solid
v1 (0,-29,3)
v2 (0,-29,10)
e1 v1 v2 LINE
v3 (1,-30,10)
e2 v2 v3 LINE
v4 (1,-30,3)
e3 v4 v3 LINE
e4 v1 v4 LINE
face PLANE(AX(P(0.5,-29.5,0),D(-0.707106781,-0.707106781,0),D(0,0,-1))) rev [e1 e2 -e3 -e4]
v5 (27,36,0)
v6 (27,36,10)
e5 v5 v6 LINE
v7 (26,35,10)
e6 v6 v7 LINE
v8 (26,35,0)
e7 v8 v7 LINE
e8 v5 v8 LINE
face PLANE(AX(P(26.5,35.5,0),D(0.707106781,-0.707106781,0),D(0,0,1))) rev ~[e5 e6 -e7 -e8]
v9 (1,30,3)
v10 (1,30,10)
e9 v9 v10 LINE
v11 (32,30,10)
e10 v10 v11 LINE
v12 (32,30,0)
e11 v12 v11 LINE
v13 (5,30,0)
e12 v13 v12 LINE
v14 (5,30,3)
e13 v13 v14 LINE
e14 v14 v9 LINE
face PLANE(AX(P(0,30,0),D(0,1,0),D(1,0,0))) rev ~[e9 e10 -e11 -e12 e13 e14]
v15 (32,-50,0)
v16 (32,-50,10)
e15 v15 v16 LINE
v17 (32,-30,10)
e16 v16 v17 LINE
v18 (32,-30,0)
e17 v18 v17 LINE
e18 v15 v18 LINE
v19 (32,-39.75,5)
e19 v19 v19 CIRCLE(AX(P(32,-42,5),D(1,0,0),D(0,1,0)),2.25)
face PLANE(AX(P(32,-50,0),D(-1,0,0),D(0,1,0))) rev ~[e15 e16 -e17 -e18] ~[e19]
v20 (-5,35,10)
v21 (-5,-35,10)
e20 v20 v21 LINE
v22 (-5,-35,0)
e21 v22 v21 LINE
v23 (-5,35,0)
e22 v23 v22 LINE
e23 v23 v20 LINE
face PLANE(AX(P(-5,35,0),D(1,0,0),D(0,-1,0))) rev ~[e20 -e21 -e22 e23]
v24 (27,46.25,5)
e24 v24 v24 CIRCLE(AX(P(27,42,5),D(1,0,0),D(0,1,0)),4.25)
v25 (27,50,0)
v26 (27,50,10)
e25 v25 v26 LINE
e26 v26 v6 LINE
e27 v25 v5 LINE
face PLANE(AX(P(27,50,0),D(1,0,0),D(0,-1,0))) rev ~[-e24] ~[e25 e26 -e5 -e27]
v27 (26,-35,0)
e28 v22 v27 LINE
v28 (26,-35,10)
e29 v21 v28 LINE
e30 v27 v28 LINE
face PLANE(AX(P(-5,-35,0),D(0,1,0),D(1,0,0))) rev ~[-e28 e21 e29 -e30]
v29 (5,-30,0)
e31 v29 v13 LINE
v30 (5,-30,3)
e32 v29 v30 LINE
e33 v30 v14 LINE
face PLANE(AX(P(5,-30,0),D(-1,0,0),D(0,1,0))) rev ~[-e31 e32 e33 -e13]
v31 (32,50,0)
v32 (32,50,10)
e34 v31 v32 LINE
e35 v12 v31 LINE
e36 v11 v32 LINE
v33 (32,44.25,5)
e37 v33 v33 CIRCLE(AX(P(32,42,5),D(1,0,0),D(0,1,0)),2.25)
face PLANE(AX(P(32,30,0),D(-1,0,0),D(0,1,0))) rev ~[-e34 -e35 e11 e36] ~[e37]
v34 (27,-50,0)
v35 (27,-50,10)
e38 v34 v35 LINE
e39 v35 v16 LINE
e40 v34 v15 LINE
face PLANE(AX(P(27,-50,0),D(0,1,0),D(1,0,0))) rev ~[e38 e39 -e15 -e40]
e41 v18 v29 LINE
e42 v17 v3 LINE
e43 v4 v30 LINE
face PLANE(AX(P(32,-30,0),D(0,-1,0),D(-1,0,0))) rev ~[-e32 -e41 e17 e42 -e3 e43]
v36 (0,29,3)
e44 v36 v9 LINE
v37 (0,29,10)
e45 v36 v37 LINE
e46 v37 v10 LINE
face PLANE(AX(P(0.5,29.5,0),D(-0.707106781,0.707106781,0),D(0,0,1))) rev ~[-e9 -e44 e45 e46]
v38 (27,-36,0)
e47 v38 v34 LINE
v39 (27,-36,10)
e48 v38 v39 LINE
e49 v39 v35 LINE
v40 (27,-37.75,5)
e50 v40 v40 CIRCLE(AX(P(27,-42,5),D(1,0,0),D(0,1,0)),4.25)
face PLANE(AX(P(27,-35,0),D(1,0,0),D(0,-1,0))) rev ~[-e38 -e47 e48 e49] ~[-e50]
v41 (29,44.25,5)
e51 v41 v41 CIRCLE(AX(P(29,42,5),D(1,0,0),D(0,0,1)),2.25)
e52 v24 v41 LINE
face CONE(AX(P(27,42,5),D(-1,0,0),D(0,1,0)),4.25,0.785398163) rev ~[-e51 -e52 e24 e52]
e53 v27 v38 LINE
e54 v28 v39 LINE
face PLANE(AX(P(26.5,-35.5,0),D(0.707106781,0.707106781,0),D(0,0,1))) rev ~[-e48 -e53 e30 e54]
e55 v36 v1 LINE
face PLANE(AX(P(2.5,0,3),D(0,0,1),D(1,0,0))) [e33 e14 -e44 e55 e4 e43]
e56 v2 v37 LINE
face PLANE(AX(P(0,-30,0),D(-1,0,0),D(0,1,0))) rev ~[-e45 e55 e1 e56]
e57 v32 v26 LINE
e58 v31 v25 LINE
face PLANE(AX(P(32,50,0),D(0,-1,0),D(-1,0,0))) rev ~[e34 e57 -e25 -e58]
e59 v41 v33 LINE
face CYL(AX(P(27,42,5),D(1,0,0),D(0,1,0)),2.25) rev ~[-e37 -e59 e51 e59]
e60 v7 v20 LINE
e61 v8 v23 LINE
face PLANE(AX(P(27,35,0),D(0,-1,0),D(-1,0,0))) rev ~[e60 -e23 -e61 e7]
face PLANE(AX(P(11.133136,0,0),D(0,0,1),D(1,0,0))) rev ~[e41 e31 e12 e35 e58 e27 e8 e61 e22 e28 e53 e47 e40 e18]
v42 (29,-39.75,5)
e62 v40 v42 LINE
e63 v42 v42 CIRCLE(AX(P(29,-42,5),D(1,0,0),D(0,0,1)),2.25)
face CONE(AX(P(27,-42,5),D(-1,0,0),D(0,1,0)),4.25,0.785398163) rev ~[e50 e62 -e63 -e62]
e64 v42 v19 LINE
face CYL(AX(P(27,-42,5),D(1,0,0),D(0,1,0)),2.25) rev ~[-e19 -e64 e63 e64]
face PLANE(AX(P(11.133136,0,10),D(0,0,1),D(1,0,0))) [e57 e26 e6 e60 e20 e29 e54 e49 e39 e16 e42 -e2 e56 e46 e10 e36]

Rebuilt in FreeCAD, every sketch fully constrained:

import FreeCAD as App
import Part
import Sketcher

V = App.Vector


def edges_at(feature, points):
    """Names of the edges that pass closest to the given points."""
    edges = feature.Shape.Edges
    near = lambda p: min(range(len(edges)), key=lambda i: edges[i].distToShape(Part.Vertex(*p))[0])
    return sorted({f"Edge{near(p) + 1}" for p in points})


def add_polygon(sketch, points):
    """Adds a closed chain of lines whose ends are joined by coincident constraints."""
    first, n = sketch.GeometryCount, len(points)
    for a, b in zip(points, points[1:] + points[:1]):
        sketch.addGeometry(Part.LineSegment(App.Vector(*a, 0), App.Vector(*b, 0)), False)
    for i in range(n):
        sketch.addConstraint(Sketcher.Constraint("Coincident", first + i, 2, first + (i + 1) % n, 1))

doc = App.newDocument("Part")
body = doc.addObject("PartDesign::Body", "Body")

# Sketch on XY plane
sketch1 = doc.addObject("Sketcher::SketchObject", "Sketch")
body.addObject(sketch1)
sketch1.AttachmentSupport = (doc.XY_Plane, [""])
sketch1.MapMode = "FlatFace"
add_polygon(sketch1, [(0, -30), (0, 30), (32, 30), (32, 50), (27, 50), (27, 35), (-5, 35), (-5, -35), (27, -35), (27, -50), (32, -50), (32, -30)])  # lines 0-11
sketch1.addConstraint(Sketcher.Constraint("Vertical", 0))
sketch1.addConstraint(Sketcher.Constraint("Horizontal", 1))
sketch1.addConstraint(Sketcher.Constraint("Vertical", 2))
sketch1.addConstraint(Sketcher.Constraint("Horizontal", 3))
sketch1.addConstraint(Sketcher.Constraint("Vertical", 4))
sketch1.addConstraint(Sketcher.Constraint("Horizontal", 5))
sketch1.addConstraint(Sketcher.Constraint("Vertical", 6))
sketch1.addConstraint(Sketcher.Constraint("Horizontal", 7))
sketch1.addConstraint(Sketcher.Constraint("Vertical", 8))
sketch1.addConstraint(Sketcher.Constraint("Horizontal", 9))
sketch1.addConstraint(Sketcher.Constraint("Vertical", 10))
sketch1.addConstraint(Sketcher.Constraint("Horizontal", 11))
sketch1.addConstraint(Sketcher.Constraint("Symmetric", 0, 2, 11, 2, -1, 1))
sketch1.addConstraint(Sketcher.Constraint("Symmetric", 4, 2, 7, 2, -1))
sketch1.addConstraint(Sketcher.Constraint("Symmetric", 2, 2, 9, 2, -1))
sketch1.addConstraint(Sketcher.Constraint("Equal", 1, 5))
sketch1.addConstraint(Sketcher.Constraint("DistanceX", 1, 1, 1, 2, 32.0))
sketch1.addConstraint(Sketcher.Constraint("DistanceX", 3, 2, 3, 1, 5.0))
sketch1.addConstraint(Sketcher.Constraint("DistanceY", 0, 1, 0, 2, 60.0))
sketch1.addConstraint(Sketcher.Constraint("DistanceY", 2, 1, 2, 2, 20.0))
sketch1.addConstraint(Sketcher.Constraint("DistanceY", 4, 2, 4, 1, 15.0))
pad1 = doc.addObject("PartDesign::Pad", "Pad")
body.addObject(pad1)
pad1.Profile = sketch1
pad1.Length = 10
doc.recompute()

chamfer = doc.addObject("PartDesign::Chamfer", "Chamfer")
body.addObject(chamfer)
chamfer.Base = (pad1, edges_at(pad1, [
    (0, -30, 5),
    (27, -35, 5),
    (0, 30, 5),
    (27, 35, 5),
]))
chamfer.Size = 1

# Sketch on YZ plane
sketch2 = doc.addObject("Sketcher::SketchObject", "Sketch001")
body.addObject(sketch2)
sketch2.AttachmentSupport = (doc.YZ_Plane, [""])
sketch2.MapMode = "FlatFace"
sketch2.AttachmentOffset = App.Placement(V(0, 0, 27), App.Rotation())
sketch2.addGeometry(Part.Circle(V(-42, 5, 0), V(0, 0, 1), 2.2), False)
sketch2.addGeometry(Part.Circle(V(42, 5, 0), V(0, 0, 1), 2.2), False)
sketch2.addConstraint(Sketcher.Constraint("Equal", 0, 1))
sketch2.addConstraint(Sketcher.Constraint("Symmetric", 0, 3, 1, 3, -2))
sketch2.addConstraint(Sketcher.Constraint("Diameter", 0, 4.5))
sketch2.addConstraint(Sketcher.Constraint("DistanceX", 0, 3, -1, 1, 42.0))
sketch2.addConstraint(Sketcher.Constraint("DistanceY", -1, 1, 0, 3, 5.0))
doc.recompute()
hole = doc.addObject("PartDesign::Hole", "Hole")
body.addObject(hole)
hole.Profile = sketch2
hole.ThreadType = "None"
hole.Diameter = 4.5
hole.DepthType = "ThroughAll"
hole.HoleCutType = "Countersink"
hole.HoleCutDiameter = 8.5
hole.HoleCutCountersinkAngle = 90
hole.Reversed = True

# Sketch on XY plane
sketch3 = doc.addObject("Sketcher::SketchObject", "Sketch002")
body.addObject(sketch3)
sketch3.AttachmentSupport = (doc.XY_Plane, [""])
sketch3.MapMode = "FlatFace"
add_polygon(sketch3, [(0, 30), (0, -30), (5, -30), (5, 30)])  # lines 0-3
sketch3.addConstraint(Sketcher.Constraint("Vertical", 0))
sketch3.addConstraint(Sketcher.Constraint("Horizontal", 1))
sketch3.addConstraint(Sketcher.Constraint("Vertical", 2))
sketch3.addConstraint(Sketcher.Constraint("Horizontal", 3))
sketch3.addConstraint(Sketcher.Constraint("Symmetric", 0, 2, 3, 2, -1, 1))
sketch3.addConstraint(Sketcher.Constraint("DistanceX", 1, 1, 1, 2, 5.0))
sketch3.addConstraint(Sketcher.Constraint("DistanceY", 0, 2, 0, 1, 60.0))
pad2 = doc.addObject("PartDesign::Pad", "Pad001")
body.addObject(pad2)
pad2.Profile = sketch3
pad2.Length = 3

doc.recompute()
